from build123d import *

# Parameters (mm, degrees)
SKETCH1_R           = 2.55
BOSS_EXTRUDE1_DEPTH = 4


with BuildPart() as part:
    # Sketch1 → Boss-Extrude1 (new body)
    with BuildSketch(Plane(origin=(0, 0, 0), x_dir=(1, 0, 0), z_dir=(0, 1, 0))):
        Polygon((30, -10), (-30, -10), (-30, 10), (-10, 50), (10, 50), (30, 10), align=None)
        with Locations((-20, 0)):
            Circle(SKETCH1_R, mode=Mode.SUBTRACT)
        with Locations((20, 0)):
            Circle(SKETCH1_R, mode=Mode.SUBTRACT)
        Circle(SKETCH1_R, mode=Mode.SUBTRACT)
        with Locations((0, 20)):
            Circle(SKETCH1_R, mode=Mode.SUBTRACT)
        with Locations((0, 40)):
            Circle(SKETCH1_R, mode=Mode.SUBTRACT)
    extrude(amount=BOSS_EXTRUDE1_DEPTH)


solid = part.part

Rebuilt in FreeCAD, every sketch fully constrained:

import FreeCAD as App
import Part
import Sketcher

V = App.Vector


def add_polygon(sketch, points):
    """Adds a closed chain of lines whose ends are joined by coincident constraints."""
    first, n = sketch.GeometryCount, len(points)
    for a, b in zip(points, points[1:] + points[:1]):
        sketch.addGeometry(Part.LineSegment(App.Vector(*a, 0), App.Vector(*b, 0)), False)
    for i in range(n):
        sketch.addConstraint(Sketcher.Constraint("Coincident", first + i, 2, first + (i + 1) % n, 1))

doc = App.newDocument("Part")
body = doc.addObject("PartDesign::Body", "Body")

# Sketch on XZ plane
sketch1 = body.newObject("Sketcher::SketchObject", "Sketch")
sketch1.AttachmentSupport = (doc.getObject("XZ_Plane"), [""])
sketch1.MapMode = "FlatFace"
add_polygon(sketch1, [(-30, 10), (30, 10), (30, -10), (10, -50), (-10, -50), (-30, -10)])  # lines 0-5
sketch1.addGeometry(Part.Circle(V(20, 0, 0), V(0, 0, 1), 2.5), False)  # 6
sketch1.addGeometry(Part.Circle(V(0, 0, 0), V(0, 0, 1), 2.5), False)  # 7
sketch1.addGeometry(Part.Circle(V(-20, 0, 0), V(0, 0, 1), 2.5), False)  # 8
sketch1.addGeometry(Part.Circle(V(0, -20, 0), V(0, 0, 1), 2.5), False)  # 9
sketch1.addGeometry(Part.Circle(V(0, -40, 0), V(0, 0, 1), 2.5), False)  # 10
sketch1.addConstraint(Sketcher.Constraint("Horizontal", 0))
sketch1.addConstraint(Sketcher.Constraint("Vertical", 1))
sketch1.addConstraint(Sketcher.Constraint("Horizontal", 3))
sketch1.addConstraint(Sketcher.Constraint("Vertical", 5))
sketch1.addConstraint(Sketcher.Constraint("Coincident", 7, 3, -1, 1))
sketch1.addConstraint(Sketcher.Constraint("Equal", 6, 7))
sketch1.addConstraint(Sketcher.Constraint("Equal", 7, 8))
sketch1.addConstraint(Sketcher.Constraint("Equal", 8, 9))
sketch1.addConstraint(Sketcher.Constraint("Equal", 9, 10))
sketch1.addConstraint(Sketcher.Constraint("Symmetric", 6, 3, 8, 3, -1, 1))
sketch1.addConstraint(Sketcher.Constraint("Symmetric", 0, 2, 4, 2, -1, 1))
sketch1.addConstraint(Sketcher.Constraint("PointOnObject", 6, 3, -1))
sketch1.addConstraint(Sketcher.Constraint("PointOnObject", 9, 3, -2))
sketch1.addConstraint(Sketcher.Constraint("PointOnObject", 10, 3, -2))
sketch1.addConstraint(Sketcher.Constraint("Horizontal", 1, 2, 4, 2))
sketch1.addConstraint(Sketcher.Constraint("Equal", 3, 1))
sketch1.addConstraint(Sketcher.Constraint("Equal", 2, 4))
sketch1.addConstraint(Sketcher.Constraint("Diameter", 6, 5.1))
sketch1.addConstraint(Sketcher.Constraint("DistanceX", 0, 1, 0, 2, 60.0))
sketch1.addConstraint(Sketcher.Constraint("DistanceX", 3, 2, 3, 1, 20.0))
sketch1.addConstraint(Sketcher.Constraint("DistanceX", -1, 1, 6, 3, 20.0))
sketch1.addConstraint(Sketcher.Constraint("DistanceY", 9, 3, -1, 1, 20.0))
sketch1.addConstraint(Sketcher.Constraint("DistanceY", 10, 3, -1, 1, 40.0))
sketch1.addConstraint(Sketcher.Constraint("DistanceY", 2, 2, -1, 1, 50.0))
pad1 = body.newObject("PartDesign::Pad", "Pad")
pad1.Profile = sketch1
pad1.Length = 4
pad1.Reversed = True

doc.recompute()
